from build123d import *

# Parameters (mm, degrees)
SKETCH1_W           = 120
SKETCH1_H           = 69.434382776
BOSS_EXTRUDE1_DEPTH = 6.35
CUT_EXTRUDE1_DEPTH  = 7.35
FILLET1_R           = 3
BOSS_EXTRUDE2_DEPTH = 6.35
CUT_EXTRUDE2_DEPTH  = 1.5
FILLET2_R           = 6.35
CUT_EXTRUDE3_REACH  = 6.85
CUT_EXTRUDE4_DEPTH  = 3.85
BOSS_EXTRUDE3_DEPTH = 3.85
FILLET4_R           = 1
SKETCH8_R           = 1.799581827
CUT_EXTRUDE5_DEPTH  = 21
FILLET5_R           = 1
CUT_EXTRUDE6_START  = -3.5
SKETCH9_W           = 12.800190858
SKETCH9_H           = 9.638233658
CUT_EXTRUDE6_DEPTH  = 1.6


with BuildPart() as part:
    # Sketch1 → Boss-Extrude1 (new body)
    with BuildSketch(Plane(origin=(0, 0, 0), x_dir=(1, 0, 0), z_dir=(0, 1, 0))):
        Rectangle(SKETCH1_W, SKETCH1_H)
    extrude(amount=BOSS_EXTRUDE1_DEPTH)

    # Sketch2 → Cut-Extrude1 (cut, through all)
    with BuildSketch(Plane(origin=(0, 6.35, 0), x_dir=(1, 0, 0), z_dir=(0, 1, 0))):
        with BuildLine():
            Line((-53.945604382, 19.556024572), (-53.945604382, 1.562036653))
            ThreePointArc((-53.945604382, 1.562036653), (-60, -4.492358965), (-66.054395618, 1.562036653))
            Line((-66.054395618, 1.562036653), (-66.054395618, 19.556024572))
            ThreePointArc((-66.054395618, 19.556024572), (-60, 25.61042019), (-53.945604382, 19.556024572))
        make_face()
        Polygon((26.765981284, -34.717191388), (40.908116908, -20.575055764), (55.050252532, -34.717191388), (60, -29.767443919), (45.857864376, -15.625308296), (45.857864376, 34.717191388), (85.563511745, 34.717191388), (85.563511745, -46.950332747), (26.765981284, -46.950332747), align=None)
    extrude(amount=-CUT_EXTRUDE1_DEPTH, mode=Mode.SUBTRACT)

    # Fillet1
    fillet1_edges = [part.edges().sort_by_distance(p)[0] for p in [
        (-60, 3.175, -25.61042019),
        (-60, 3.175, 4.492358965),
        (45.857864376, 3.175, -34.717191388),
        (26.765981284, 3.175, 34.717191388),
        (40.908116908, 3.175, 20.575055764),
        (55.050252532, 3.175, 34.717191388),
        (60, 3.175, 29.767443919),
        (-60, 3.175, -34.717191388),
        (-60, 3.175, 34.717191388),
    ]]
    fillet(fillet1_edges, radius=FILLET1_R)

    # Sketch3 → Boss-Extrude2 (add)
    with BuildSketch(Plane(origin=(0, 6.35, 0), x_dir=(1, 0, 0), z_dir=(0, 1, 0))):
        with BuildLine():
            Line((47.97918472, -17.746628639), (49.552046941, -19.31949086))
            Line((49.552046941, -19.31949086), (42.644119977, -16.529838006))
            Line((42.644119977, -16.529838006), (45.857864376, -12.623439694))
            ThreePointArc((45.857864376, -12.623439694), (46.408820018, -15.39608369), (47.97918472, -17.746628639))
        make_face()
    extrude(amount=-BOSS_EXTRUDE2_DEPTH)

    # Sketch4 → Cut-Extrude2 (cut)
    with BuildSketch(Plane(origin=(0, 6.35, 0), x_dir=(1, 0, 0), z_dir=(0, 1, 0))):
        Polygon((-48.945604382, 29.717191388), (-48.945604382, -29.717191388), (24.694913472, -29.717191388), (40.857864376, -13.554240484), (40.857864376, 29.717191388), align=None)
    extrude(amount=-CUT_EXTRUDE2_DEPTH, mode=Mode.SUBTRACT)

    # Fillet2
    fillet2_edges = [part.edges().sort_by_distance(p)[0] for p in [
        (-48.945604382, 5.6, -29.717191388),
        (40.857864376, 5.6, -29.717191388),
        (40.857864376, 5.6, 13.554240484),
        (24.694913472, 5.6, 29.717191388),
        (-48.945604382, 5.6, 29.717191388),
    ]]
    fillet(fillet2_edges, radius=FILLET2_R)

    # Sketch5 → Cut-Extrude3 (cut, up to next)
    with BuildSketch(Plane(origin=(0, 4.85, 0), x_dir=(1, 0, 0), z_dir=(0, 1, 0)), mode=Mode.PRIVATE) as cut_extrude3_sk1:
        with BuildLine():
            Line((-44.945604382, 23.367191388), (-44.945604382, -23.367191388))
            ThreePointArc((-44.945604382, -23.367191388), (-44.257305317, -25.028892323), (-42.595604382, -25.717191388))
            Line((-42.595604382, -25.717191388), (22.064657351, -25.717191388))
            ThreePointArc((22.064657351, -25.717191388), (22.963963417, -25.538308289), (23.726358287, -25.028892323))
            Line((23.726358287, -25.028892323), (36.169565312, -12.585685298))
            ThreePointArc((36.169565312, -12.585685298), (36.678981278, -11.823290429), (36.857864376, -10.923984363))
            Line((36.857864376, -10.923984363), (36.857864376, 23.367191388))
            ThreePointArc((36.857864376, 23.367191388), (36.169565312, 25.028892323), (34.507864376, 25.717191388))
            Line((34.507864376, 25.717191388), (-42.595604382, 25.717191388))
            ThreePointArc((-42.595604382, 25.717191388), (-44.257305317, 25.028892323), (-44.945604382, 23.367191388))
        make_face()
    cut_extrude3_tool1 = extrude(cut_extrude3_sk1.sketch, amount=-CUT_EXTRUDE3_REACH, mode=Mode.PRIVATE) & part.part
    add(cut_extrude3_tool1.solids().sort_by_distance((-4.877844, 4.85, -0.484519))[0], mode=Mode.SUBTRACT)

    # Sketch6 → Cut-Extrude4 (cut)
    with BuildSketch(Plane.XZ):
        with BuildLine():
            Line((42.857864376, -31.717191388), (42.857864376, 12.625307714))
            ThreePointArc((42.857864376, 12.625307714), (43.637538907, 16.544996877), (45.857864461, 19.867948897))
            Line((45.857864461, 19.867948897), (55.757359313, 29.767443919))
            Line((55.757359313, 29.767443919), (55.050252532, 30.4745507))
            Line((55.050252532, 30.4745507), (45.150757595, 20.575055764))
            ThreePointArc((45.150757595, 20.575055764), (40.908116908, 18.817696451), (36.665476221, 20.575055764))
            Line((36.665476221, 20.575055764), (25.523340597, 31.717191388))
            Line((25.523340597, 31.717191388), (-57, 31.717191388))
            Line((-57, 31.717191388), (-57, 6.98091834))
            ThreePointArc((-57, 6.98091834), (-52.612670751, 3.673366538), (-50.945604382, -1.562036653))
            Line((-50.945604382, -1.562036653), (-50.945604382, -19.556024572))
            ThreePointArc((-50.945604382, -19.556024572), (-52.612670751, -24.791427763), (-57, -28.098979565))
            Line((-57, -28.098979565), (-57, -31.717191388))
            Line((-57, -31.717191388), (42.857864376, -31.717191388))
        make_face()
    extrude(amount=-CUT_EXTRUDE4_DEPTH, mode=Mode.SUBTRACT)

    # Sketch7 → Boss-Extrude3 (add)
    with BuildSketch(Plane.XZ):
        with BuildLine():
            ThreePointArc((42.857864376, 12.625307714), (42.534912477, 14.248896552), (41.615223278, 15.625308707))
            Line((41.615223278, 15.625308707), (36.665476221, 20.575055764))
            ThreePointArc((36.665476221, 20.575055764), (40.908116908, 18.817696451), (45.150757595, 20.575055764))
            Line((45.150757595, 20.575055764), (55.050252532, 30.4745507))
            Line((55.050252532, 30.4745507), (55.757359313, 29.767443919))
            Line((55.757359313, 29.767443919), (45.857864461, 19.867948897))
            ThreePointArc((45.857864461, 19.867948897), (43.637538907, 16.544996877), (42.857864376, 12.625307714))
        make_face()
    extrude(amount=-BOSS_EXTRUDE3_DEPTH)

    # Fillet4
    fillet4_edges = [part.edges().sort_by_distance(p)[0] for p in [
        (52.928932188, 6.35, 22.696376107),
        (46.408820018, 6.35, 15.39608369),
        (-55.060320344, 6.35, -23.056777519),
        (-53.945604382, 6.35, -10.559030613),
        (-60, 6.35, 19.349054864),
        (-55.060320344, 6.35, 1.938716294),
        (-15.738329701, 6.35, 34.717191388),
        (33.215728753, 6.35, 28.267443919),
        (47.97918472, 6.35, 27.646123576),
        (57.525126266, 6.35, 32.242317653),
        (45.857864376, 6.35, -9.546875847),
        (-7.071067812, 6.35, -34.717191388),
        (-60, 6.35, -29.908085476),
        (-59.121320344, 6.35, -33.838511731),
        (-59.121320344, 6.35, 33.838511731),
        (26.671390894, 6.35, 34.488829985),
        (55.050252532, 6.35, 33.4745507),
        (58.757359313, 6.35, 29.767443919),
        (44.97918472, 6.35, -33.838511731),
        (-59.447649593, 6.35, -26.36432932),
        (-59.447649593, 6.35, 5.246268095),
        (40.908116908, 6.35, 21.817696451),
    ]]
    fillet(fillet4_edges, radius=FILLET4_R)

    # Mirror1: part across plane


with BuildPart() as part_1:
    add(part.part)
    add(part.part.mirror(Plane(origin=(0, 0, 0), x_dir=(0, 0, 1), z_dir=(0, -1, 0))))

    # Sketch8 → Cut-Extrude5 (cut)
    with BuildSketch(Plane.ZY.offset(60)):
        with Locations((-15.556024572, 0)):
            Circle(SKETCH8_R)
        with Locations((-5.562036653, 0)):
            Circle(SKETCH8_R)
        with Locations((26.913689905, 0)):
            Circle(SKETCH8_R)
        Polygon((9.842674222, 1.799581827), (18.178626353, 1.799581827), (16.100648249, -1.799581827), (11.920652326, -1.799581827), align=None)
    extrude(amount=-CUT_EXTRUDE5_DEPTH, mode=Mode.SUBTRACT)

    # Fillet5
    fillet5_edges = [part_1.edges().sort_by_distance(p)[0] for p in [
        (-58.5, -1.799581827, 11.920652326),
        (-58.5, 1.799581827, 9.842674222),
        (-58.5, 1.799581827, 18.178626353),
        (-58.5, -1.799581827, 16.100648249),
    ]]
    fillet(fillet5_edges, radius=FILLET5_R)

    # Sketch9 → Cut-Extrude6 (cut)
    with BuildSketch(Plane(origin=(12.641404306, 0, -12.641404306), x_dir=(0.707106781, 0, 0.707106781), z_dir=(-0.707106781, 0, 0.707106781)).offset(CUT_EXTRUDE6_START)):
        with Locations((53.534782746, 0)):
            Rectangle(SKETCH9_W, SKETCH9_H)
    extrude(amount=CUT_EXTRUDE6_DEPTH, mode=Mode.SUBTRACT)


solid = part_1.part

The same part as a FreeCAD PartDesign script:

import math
import FreeCAD as App
import Part
import Sketcher

V = App.Vector
Q = App.Units.Quantity


def edges_at(feature, points):
    """Names of the edges that pass closest to the given points."""
    edges = feature.Shape.Edges
    near = lambda p: min(range(len(edges)), key=lambda i: edges[i].distToShape(Part.Vertex(*p))[0])
    return sorted({f"Edge{near(p) + 1}" for p in points})


def add_polygon(sketch, points):
    """Adds a closed chain of lines whose ends are joined by coincident constraints."""
    first, n = sketch.GeometryCount, len(points)
    for a, b in zip(points, points[1:] + points[:1]):
        sketch.addGeometry(Part.LineSegment(App.Vector(*a, 0), App.Vector(*b, 0)), False)
    for i in range(n):
        sketch.addConstraint(Sketcher.Constraint("Coincident", first + i, 2, first + (i + 1) % n, 1))

doc = App.newDocument("Part")
params = doc.addObject("Spreadsheet::Sheet", "Params")
for row, (alias, value) in enumerate([
    ("sketch1_width", "120 mm"),
    ("pad1_length", "6.35 mm"),
    ("sketch2_length", "20 mm"),
    ("sketch2_length2", "7 mm"),
    ("fillet_radius", "3 mm"),
    ("pad2_length", "6.35 mm"),
    ("pocket2_length", "1.5 mm"),
    ("fillet2_radius", "6.35 mm"),
    ("sketch5_radius", "2.35 mm"),
    ("sketch6_radius", "6 mm"),
    ("sketch6_length", "14 mm"),
    ("sketch6_length2", "1 mm"),
    ("pocket4_length", "3.85 mm"),
    ("sketch7_radius", "6 mm"),
    ("sketch7_length", "14 mm"),
    ("sketch7_length2", "1 mm"),
    ("sketch7_length3", "6.999999 mm"),
    ("pad3_length", "3.85 mm"),
    ("fillet3_radius", "1 mm"),
    ("pocket5_length", "21 mm"),
    ("fillet4_radius", "1 mm"),
    ("pocket6_length", "1.6 mm"),
], start=1):
    params.set(f"A{row}", alias)
    params.set(f"B{row}", "=" + value)
    params.setAlias(f"B{row}", alias)

body = doc.addObject("PartDesign::Body", "Body")

sketch1 = body.newObject("Sketcher::SketchObject", "Sketch")
sketch1.AttachmentSupport = (doc.getObject("XZ_Plane"), [""])
sketch1.MapMode = "FlatFace"
add_polygon(sketch1, [(-60, -35), (-60, 35), (60, 35), (60, -35)])
sketch1.addConstraint(Sketcher.Constraint("Vertical", 0))
sketch1.addConstraint(Sketcher.Constraint("Horizontal", 1))
sketch1.addConstraint(Sketcher.Constraint("Vertical", 2))
sketch1.addConstraint(Sketcher.Constraint("Horizontal", 3))
sketch1.addConstraint(Sketcher.Constraint("Symmetric", 0, 2, 2, 2, -1, 1))
sketch1.addConstraint(Sketcher.Constraint("DistanceX", 1, 1, 1, 2, 120.0))
sketch1.addConstraint(Sketcher.Constraint("DistanceY", 0, 1, 0, 2, 69.434383))
sketch1.setExpression("Constraints[9]", "Params.sketch1_width")
pad1 = body.newObject("PartDesign::Pad", "Pad")
pad1.Profile = sketch1
pad1.setExpression("Length", "Params.pad1_length")
pad1.Reversed = True

sketch2 = body.newObject("Sketcher::SketchObject", "Sketch001")
sketch2.AttachmentSupport = (doc.getObject("XZ_Plane"), [""])
sketch2.MapMode = "FlatFace"
sketch2.AttachmentOffset = App.Placement(V(0, 0, -6.35), App.Rotation())
sketch2.addGeometry(Part.LineSegment(V(-54, -2, 0), V(-54, -20, 0)), False)
sketch2.addGeometry(Part.ArcOfCircle(Part.Circle(V(-60, -20, 0), V(0, 0, 1), 6), math.radians(180), math.radians(360)), False)
sketch2.addGeometry(Part.LineSegment(V(-66, -20, 0), V(-66, -2, 0)), False)
sketch2.addGeometry(Part.ArcOfCircle(Part.Circle(V(-60, -2, 0), V(0, 0, 1), 6), math.radians(0), math.radians(180)), False)
add_polygon(sketch2, [(41, 21), (27, 35), (27, 47), (86, 47), (86, -35), (46, -35), (46, 16), (60, 30), (55, 35)])
sketch2.addConstraint(Sketcher.Constraint("Tangent", 0, 2, 1, 2))
sketch2.addConstraint(Sketcher.Constraint("Tangent", 1, 1, 2, 1))
sketch2.addConstraint(Sketcher.Constraint("Tangent", 2, 2, 3, 2))
sketch2.addConstraint(Sketcher.Constraint("Tangent", 3, 1, 0, 1))
sketch2.addConstraint(Sketcher.Constraint("Vertical", 0))
sketch2.addConstraint(Sketcher.Constraint("Vertical", 2))
sketch2.addConstraint(Sketcher.Constraint("Vertical", 5))
sketch2.addConstraint(Sketcher.Constraint("Horizontal", 6))
sketch2.addConstraint(Sketcher.Constraint("Vertical", 7))
sketch2.addConstraint(Sketcher.Constraint("Horizontal", 8))
sketch2.addConstraint(Sketcher.Constraint("Vertical", 9))
sketch2.addConstraint(Sketcher.Constraint("Perpendicular", 4, 10))
sketch2.addConstraint(Sketcher.Constraint("Perpendicular", 10, 11))
sketch2.addConstraint(Sketcher.Constraint("Perpendicular", 11, 12))
sketch2.addConstraint(Sketcher.Constraint("Horizontal", 4, 2, 11, 2))
sketch2.addConstraint(Sketcher.Constraint("Equal", 4, 10))
sketch2.addConstraint(Sketcher.Constraint("Equal", 10, 12))
sketch2.addConstraint(Sketcher.Constraint("Distance", 4, 20.0))
sketch2.addConstraint(Sketcher.Constraint("Distance", 11, 7.0))
sketch2.addConstraint(Sketcher.Constraint("DistanceX", 1, 3, -1, 1, 60.0))
sketch2.addConstraint(Sketcher.Constraint("DistanceX", -1, 1, 10, 2, 60.0))
sketch2.addConstraint(Sketcher.Constraint("DistanceY", 9, 1, 9, 2, 50.3425))
sketch2.addConstraint(Sketcher.Constraint("Radius", 1, 6.054396))
sketch2.addConstraint(Sketcher.Constraint("DistanceX", 6, 1, 6, 2, 58.79753))
sketch2.addConstraint(Sketcher.Constraint("DistanceY", 5, 1, 5, 2, 12.233141))
sketch2.addConstraint(Sketcher.Constraint("DistanceY", 0, 2, 0, 1, 17.993988))
sketch2.addConstraint(Sketcher.Constraint("DistanceY", -1, 1, 4, 2, 34.717191))
sketch2.addConstraint(Sketcher.Constraint("DistanceY", 3, 1, 4, 2, 36.279228))
sketch2.setExpression("Constraints[26]", "Params.sketch2_length")
sketch2.setExpression("Constraints[27]", "Params.sketch2_length2")
pocket1 = body.newObject("PartDesign::Pocket", "Pocket")
pocket1.Profile = sketch2
pocket1.Type = "ThroughAll"
pocket1.Reversed = True
doc.recompute()

fillet = body.newObject("PartDesign::Fillet", "Fillet")
fillet.Base = (pocket1, edges_at(pocket1, [
    (-60, 3.175, -25.61),
    (-60, 3.175, 4.492),
    (45.858, 3.175, -34.717),
    (26.766, 3.175, 34.717),
    (40.908, 3.175, 20.575),
    (55.05, 3.175, 34.717),
    (60, 3.175, 29.767),
    (-60, 3.175, -34.717),
    (-60, 3.175, 34.717),
]))
fillet.setExpression("Radius", "Params.fillet_radius")

sketch3 = body.newObject("Sketcher::SketchObject", "Sketch002")
sketch3.AttachmentSupport = (doc.getObject("XZ_Plane"), [""])
sketch3.MapMode = "FlatFace"
sketch3.AttachmentOffset = App.Placement(V(0, 0, -6.35), App.Rotation())
sketch3.addGeometry(Part.LineSegment(V(49.6, 19.3, 0), V(48, 17.7, 0)), False)
sketch3.addGeometry(Part.ArcOfCircle(Part.Circle(V(53.1, 12.6, 0), V(0, 0, 1), 7.2), math.radians(135), math.radians(180)), False)
sketch3.addGeometry(Part.LineSegment(V(45.9, 12.6, 0), V(42.6, 16.5, 0)), False)
sketch3.addGeometry(Part.LineSegment(V(42.6, 16.5, 0), V(49.6, 19.3, 0)), False)
sketch3.addConstraint(Sketcher.Constraint("Tangent", 0, 2, 1, 1))
sketch3.addConstraint(Sketcher.Constraint("Coincident", 1, 2, 2, 1))
sketch3.addConstraint(Sketcher.Constraint("Coincident", 2, 2, 3, 1))
sketch3.addConstraint(Sketcher.Constraint("Coincident", 3, 2, 0, 1))
sketch3.addConstraint(Sketcher.Constraint("Angle", 0, Q("-135 deg")))
sketch3.addConstraint(Sketcher.Constraint("Radius", 1, 7.242642))
sketch3.addConstraint(Sketcher.Constraint("DistanceY", 1, 2, 2, 2, 3.906398))
sketch3.addConstraint(Sketcher.Constraint("Distance", 2, 5.058468))
sketch3.addConstraint(Sketcher.Constraint("Distance", 3, 7.449941))
sketch3.addConstraint(Sketcher.Constraint("DistanceY", -1, 1, 0, 2, 17.746629))
sketch3.addConstraint(Sketcher.Constraint("DistanceY", -1, 1, 1, 2, 12.62344))
sketch3.addConstraint(Sketcher.Constraint("DistanceX", -1, 1, 2, 2, 42.64412))
pad2 = body.newObject("PartDesign::Pad", "Pad001")
pad2.Profile = sketch3
pad2.setExpression("Length", "Params.pad2_length")

sketch4 = body.newObject("Sketcher::SketchObject", "Sketch003")
sketch4.AttachmentSupport = (doc.getObject("XZ_Plane"), [""])
sketch4.MapMode = "FlatFace"
sketch4.AttachmentOffset = App.Placement(V(0, 0, -6.35), App.Rotation())
add_polygon(sketch4, [(-49, -30), (-49, 30), (25, 30), (41, 14), (41, -30)])
sketch4.addConstraint(Sketcher.Constraint("Vertical", 0))
sketch4.addConstraint(Sketcher.Constraint("Horizontal", 1))
sketch4.addConstraint(Sketcher.Constraint("Vertical", 3))
sketch4.addConstraint(Sketcher.Constraint("Horizontal", 4))
sketch4.addConstraint(Sketcher.Constraint("Angle", 2, Q("-45 deg")))
sketch4.addConstraint(Sketcher.Constraint("DistanceX", 4, 2, 4, 1, 89.803469))
sketch4.addConstraint(Sketcher.Constraint("DistanceY", 3, 2, 3, 1, 43.271432))
sketch4.addConstraint(Sketcher.Constraint("DistanceX", 1, 1, 1, 2, 73.640518))
sketch4.addConstraint(Sketcher.Constraint("DistanceY", -1, 1, 0, 2, 29.717191))
sketch4.addConstraint(Sketcher.Constraint("DistanceX", 0, 2, -1, 1, 48.945604))
pocket2 = body.newObject("PartDesign::Pocket", "Pocket001")
pocket2.Profile = sketch4
pocket2.setExpression("Length", "Params.pocket2_length")
pocket2.Reversed = True
doc.recompute()

fillet2 = body.newObject("PartDesign::Fillet", "Fillet001")
fillet2.Base = (pocket2, edges_at(pocket2, [
    (-48.946, 5.6, -29.717),
    (40.858, 5.6, -29.717),
    (40.858, 5.6, 13.554),
    (24.695, 5.6, 29.717),
    (-48.946, 5.6, 29.717),
]))
fillet2.setExpression("Radius", "Params.fillet2_radius")

sketch5 = body.newObject("Sketcher::SketchObject", "Sketch004")
sketch5.AttachmentSupport = (doc.getObject("XZ_Plane"), [""])
sketch5.MapMode = "FlatFace"
sketch5.AttachmentOffset = App.Placement(V(0, 0, -4.85), App.Rotation())
sketch5.addGeometry(Part.LineSegment(V(-44.9, -23.4, 0), V(-44.9, 23.4, 0)), False)
sketch5.addGeometry(Part.ArcOfCircle(Part.Circle(V(-42.6, 23.4, 0), V(0, 0, 1), 2.4), math.radians(90), math.radians(180)), False)
sketch5.addGeometry(Part.LineSegment(V(-42.6, 25.7, 0), V(22.1, 25.7, 0)), False)
sketch5.addGeometry(Part.ArcOfCircle(Part.Circle(V(22.1, 23.4, 0), V(0, 0, 1), 2.4), math.radians(45), math.radians(90)), False)
sketch5.addGeometry(Part.LineSegment(V(23.7, 25, 0), V(36.2, 12.6, 0)), False)
sketch5.addGeometry(Part.ArcOfCircle(Part.Circle(V(34.5, 10.9, 0), V(0, 0, 1), 2.3), math.radians(0), math.radians(45)), False)
sketch5.addGeometry(Part.LineSegment(V(36.9, 10.9, 0), V(36.9, -23.4, 0)), False)
sketch5.addGeometry(Part.ArcOfCircle(Part.Circle(V(34.5, -23.4, 0), V(0, 0, 1), 2.4), math.radians(-90), math.radians(0)), False)
sketch5.addGeometry(Part.LineSegment(V(34.5, -25.7, 0), V(-42.6, -25.7, 0)), False)
sketch5.addGeometry(Part.ArcOfCircle(Part.Circle(V(-42.6, -23.4, 0), V(0, 0, 1), 2.4), math.radians(-180), math.radians(-90)), False)
sketch5.addConstraint(Sketcher.Constraint("Tangent", 0, 2, 1, 2))
sketch5.addConstraint(Sketcher.Constraint("Tangent", 1, 1, 2, 1))
sketch5.addConstraint(Sketcher.Constraint("Tangent", 2, 2, 3, 2))
sketch5.addConstraint(Sketcher.Constraint("Tangent", 3, 1, 4, 1))
sketch5.addConstraint(Sketcher.Constraint("Tangent", 4, 2, 5, 2))
sketch5.addConstraint(Sketcher.Constraint("Tangent", 5, 1, 6, 1))
sketch5.addConstraint(Sketcher.Constraint("Tangent", 6, 2, 7, 2))
sketch5.addConstraint(Sketcher.Constraint("Tangent", 7, 1, 8, 1))
sketch5.addConstraint(Sketcher.Constraint("Tangent", 8, 2, 9, 2))
sketch5.addConstraint(Sketcher.Constraint("Tangent", 9, 1, 0, 1))
sketch5.addConstraint(Sketcher.Constraint("Vertical", 0))
sketch5.addConstraint(Sketcher.Constraint("Horizontal", 2))
sketch5.addConstraint(Sketcher.Constraint("Vertical", 6))
sketch5.addConstraint(Sketcher.Constraint("Horizontal", 8))
sketch5.addConstraint(Sketcher.Constraint("Equal", 1, 3))
sketch5.addConstraint(Sketcher.Constraint("Equal", 3, 5))
sketch5.addConstraint(Sketcher.Constraint("Equal", 5, 7))
sketch5.addConstraint(Sketcher.Constraint("Equal", 7, 9))
sketch5.addConstraint(Sketcher.Constraint("Angle", 4, Q("-45 deg")))
sketch5.addConstraint(Sketcher.Constraint("Radius", 1, 2.35))
sketch5.addConstraint(Sketcher.Constraint("DistanceX", 2, 1, 2, 2, 64.660262))
sketch5.addConstraint(Sketcher.Constraint("DistanceX", 8, 2, 8, 1, 77.103469))
sketch5.addConstraint(Sketcher.Constraint("DistanceY", 0, 1, 0, 2, 46.734383))
sketch5.addConstraint(Sketcher.Constraint("DistanceY", -1, 1, 1, 3, 23.367191))
sketch5.addConstraint(Sketcher.Constraint("DistanceX", -1, 1, 3, 1, 23.726358))
sketch5.setExpression("Constraints[19]", "Params.sketch5_radius")
pocket3 = body.newObject("PartDesign::Pocket", "Pocket002")
pocket3.Profile = sketch5
pocket3.Type = "UpToFirst"
pocket3.Reversed = True

sketch6 = body.newObject("Sketcher::SketchObject", "Sketch005")
sketch6.AttachmentSupport = (doc.getObject("XZ_Plane"), [""])
sketch6.MapMode = "FlatFace"
sketch6.addGeometry(Part.LineSegment(V(42.9, -31.7, 0), V(42.9, 12.6, 0)), False)
sketch6.addGeometry(Part.ArcOfCircle(Part.Circle(V(53.1, 12.6, 0), V(0, 0, 1), 10.2), math.radians(135), math.radians(180)), False)
sketch6.addGeometry(Part.LineSegment(V(45.9, 19.9, 0), V(55.8, 29.8, 0)), False)
sketch6.addGeometry(Part.LineSegment(V(55.8, 29.8, 0), V(55.1, 30.5, 0)), False)
sketch6.addGeometry(Part.LineSegment(V(55.1, 30.5, 0), V(45.2, 20.6, 0)), False)
sketch6.addGeometry(Part.ArcOfCircle(Part.Circle(V(40.9, 24.8, 0), V(0, 0, 1), 6), math.radians(-135), math.radians(-45)), False)
sketch6.addGeometry(Part.LineSegment(V(36.7, 20.6, 0), V(25.5, 31.7, 0)), False)
sketch6.addGeometry(Part.LineSegment(V(25.5, 31.7, 0), V(-57, 31.7, 0)), False)
sketch6.addGeometry(Part.LineSegment(V(-57, 31.7, 0), V(-57, 7, 0)), False)
sketch6.addGeometry(Part.ArcOfCircle(Part.Circle(V(-60, -1.6, 0), V(0, 0, 1), 9.1), math.radians(0), math.radians(71)), False)
sketch6.addGeometry(Part.LineSegment(V(-50.9, -1.6, 0), V(-50.9, -19.6, 0)), False)
sketch6.addGeometry(Part.ArcOfCircle(Part.Circle(V(-60, -19.6, 0), V(0, 0, 1), 9.1), math.radians(-71), math.radians(0)), False)
sketch6.addGeometry(Part.LineSegment(V(-57, -28.1, 0), V(-57, -31.7, 0)), False)
sketch6.addGeometry(Part.LineSegment(V(-57, -31.7, 0), V(42.9, -31.7, 0)), False)
sketch6.addConstraint(Sketcher.Constraint("Tangent", 0, 2, 1, 2))
sketch6.addConstraint(Sketcher.Constraint("Tangent", 1, 1, 2, 1))
sketch6.addConstraint(Sketcher.Constraint("Coincident", 2, 2, 3, 1))
sketch6.addConstraint(Sketcher.Constraint("Coincident", 3, 2, 4, 1))
sketch6.addConstraint(Sketcher.Constraint("Tangent", 4, 2, 5, 2))
sketch6.addConstraint(Sketcher.Constraint("Tangent", 5, 1, 6, 1))
sketch6.addConstraint(Sketcher.Constraint("Coincident", 6, 2, 7, 1))
sketch6.addConstraint(Sketcher.Constraint("Coincident", 7, 2, 8, 1))
sketch6.addConstraint(Sketcher.Constraint("Coincident", 8, 2, 9, 2))
sketch6.addConstraint(Sketcher.Constraint("Tangent", 9, 1, 10, 1))
sketch6.addConstraint(Sketcher.Constraint("Tangent", 10, 2, 11, 2))
sketch6.addConstraint(Sketcher.Constraint("Coincident", 11, 1, 12, 1))
sketch6.addConstraint(Sketcher.Constraint("Coincident", 12, 2, 13, 1))
sketch6.addConstraint(Sketcher.Constraint("Coincident", 13, 2, 0, 1))
sketch6.addConstraint(Sketcher.Constraint("Vertical", 0))
sketch6.addConstraint(Sketcher.Constraint("Horizontal", 7))
sketch6.addConstraint(Sketcher.Constraint("Vertical", 8))
sketch6.addConstraint(Sketcher.Constraint("Vertical", 10))
sketch6.addConstraint(Sketcher.Constraint("Vertical", 12))
sketch6.addConstraint(Sketcher.Constraint("Horizontal", 13))
sketch6.addConstraint(Sketcher.Constraint("Equal", 9, 11))
sketch6.addConstraint(Sketcher.Constraint("Symmetric", 7, 2, 12, 2, -1))
sketch6.addConstraint(Sketcher.Constraint("Perpendicular", 2, 3))
sketch6.addConstraint(Sketcher.Constraint("Perpendicular", 3, 4))
sketch6.addConstraint(Sketcher.Constraint("Perpendicular", 4, 6))
sketch6.addConstraint(Sketcher.Constraint("Horizontal", 4, 2, 5, 1))
sketch6.addConstraint(Sketcher.Constraint("Equal", 2, 4))
sketch6.addConstraint(Sketcher.Constraint("Radius", 5, 6.0))
sketch6.addConstraint(Sketcher.Constraint("Distance", 2, 14.0))
sketch6.addConstraint(Sketcher.Constraint("Distance", 3, 1.0))
sketch6.addConstraint(Sketcher.Constraint("DistanceX", 9, 3, -1, 1, 60.0))
sketch6.addConstraint(Sketcher.Constraint("DistanceX", 7, 2, -1, 1, 57.0))
sketch6.addConstraint(Sketcher.Constraint("DistanceX", 0, 2, 1, 1, 3.0))
sketch6.addConstraint(Sketcher.Constraint("DistanceY", 0, 1, 0, 2, 44.342499))
sketch6.addConstraint(Sketcher.Constraint("Radius", 9, 9.054396))
sketch6.addConstraint(Sketcher.Constraint("DistanceX", 7, 2, 7, 1, 82.523341))
sketch6.addConstraint(Sketcher.Constraint("DistanceY", 12, 2, 12, 1, 3.618212))
sketch6.addConstraint(Sketcher.Constraint("Distance", 6, 15.757359))
sketch6.addConstraint(Sketcher.Constraint("DistanceY", 8, 2, 8, 1, 24.736273))
sketch6.setExpression("Constraints[27]", "Params.sketch6_radius")
sketch6.setExpression("Constraints[28]", "Params.sketch6_length")
sketch6.setExpression("Constraints[29]", "Params.sketch6_length2")
pocket4 = body.newObject("PartDesign::Pocket", "Pocket003")
pocket4.Profile = sketch6
pocket4.setExpression("Length", "Params.pocket4_length")

sketch7 = body.newObject("Sketcher::SketchObject", "Sketch006")
sketch7.AttachmentSupport = (doc.getObject("XZ_Plane"), [""])
sketch7.MapMode = "FlatFace"
sketch7.addGeometry(Part.ArcOfCircle(Part.Circle(V(38.6, 12.6, 0), V(0, 0, 1), 4.2), math.radians(0), math.radians(45)), False)
sketch7.addGeometry(Part.ArcOfCircle(Part.Circle(V(53.1, 12.6, 0), V(0, 0, 1), 10.2), math.radians(135), math.radians(180)), False)
sketch7.addGeometry(Part.LineSegment(V(45.9, 19.9, 0), V(55.8, 29.8, 0)), False)
sketch7.addGeometry(Part.LineSegment(V(55.8, 29.8, 0), V(55.1, 30.5, 0)), False)
sketch7.addGeometry(Part.LineSegment(V(55.1, 30.5, 0), V(45.2, 20.6, 0)), False)
sketch7.addGeometry(Part.ArcOfCircle(Part.Circle(V(40.9, 24.8, 0), V(0, 0, 1), 6), math.radians(-135), math.radians(-45)), False)
sketch7.addGeometry(Part.LineSegment(V(36.7, 20.6, 0), V(41.6, 15.6, 0)), False)
sketch7.addConstraint(Sketcher.Constraint("Tangent", 0, 1, 1, 2))
sketch7.addConstraint(Sketcher.Constraint("Tangent", 1, 1, 2, 1))
sketch7.addConstraint(Sketcher.Constraint("Coincident", 2, 2, 3, 1))
sketch7.addConstraint(Sketcher.Constraint("Coincident", 3, 2, 4, 1))
sketch7.addConstraint(Sketcher.Constraint("Tangent", 4, 2, 5, 2))
sketch7.addConstraint(Sketcher.Constraint("Tangent", 5, 1, 6, 1))
sketch7.addConstraint(Sketcher.Constraint("Tangent", 6, 2, 0, 2))
sketch7.addConstraint(Sketcher.Constraint("Perpendicular", 2, 3))
sketch7.addConstraint(Sketcher.Constraint("Perpendicular", 3, 4))
sketch7.addConstraint(Sketcher.Constraint("Perpendicular", 4, 6))
sketch7.addConstraint(Sketcher.Constraint("Horizontal", 0, 3, 1, 3))
sketch7.addConstraint(Sketcher.Constraint("Horizontal", 4, 2, 5, 1))
sketch7.addConstraint(Sketcher.Constraint("Equal", 2, 4))
sketch7.addConstraint(Sketcher.Constraint("Radius", 5, 6.0))
sketch7.addConstraint(Sketcher.Constraint("Distance", 2, 14.0))
sketch7.addConstraint(Sketcher.Constraint("Distance", 3, 1.0))
sketch7.addConstraint(Sketcher.Constraint("Distance", 6, 6.999999))
sketch7.addConstraint(Sketcher.Constraint("DistanceY", -1, 1, 1, 3, 12.625308))
sketch7.addConstraint(Sketcher.Constraint("DistanceX", -1, 1, 2, 2, 55.757359))
sketch7.setExpression("Constraints[13]", "Params.sketch7_radius")
sketch7.setExpression("Constraints[14]", "Params.sketch7_length")
sketch7.setExpression("Constraints[15]", "Params.sketch7_length2")
sketch7.setExpression("Constraints[16]", "Params.sketch7_length3")
pad3 = body.newObject("PartDesign::Pad", "Pad002")
pad3.Profile = sketch7
pad3.setExpression("Length", "Params.pad3_length")
pad3.Reversed = True
doc.recompute()

fillet3 = body.newObject("PartDesign::Fillet", "Fillet002")
fillet3.Base = (pad3, edges_at(pad3, [
    (53.715, 6.35, 23.483),
    (46.409, 6.35, 15.396),
    (-55.06, 6.35, -23.057),
    (-53.946, 6.35, -10.559),
    (-60, 6.35, 19.349),
    (-55.06, 6.35, 1.939),
    (-15.738, 6.35, 34.717),
    (33.216, 6.35, 28.267),
    (47.979, 6.35, 27.646),
    (57.525, 6.35, 32.242),
    (45.858, 6.35, -9.547),
    (-7.071, 6.35, -34.717),
    (-60, 6.35, -29.908),
    (-59.121, 6.35, -33.839),
    (-59.121, 6.35, 33.839),
    (26.671, 6.35, 34.489),
    (55.05, 6.35, 33.475),
    (58.757, 6.35, 29.767),
    (44.979, 6.35, -33.839),
    (-59.448, 6.35, -26.364),
    (-59.448, 6.35, 5.246),
    (40.908, 6.35, 21.818),
]))
fillet3.setExpression("Radius", "Params.fillet3_radius")
body2 = doc.addObject("PartDesign::Body", "Body001")
doc.recompute()

body2.BaseFeature = body
doc.recompute()

mirroring = doc.addObject("Part::Mirroring", "Mirroring")
mirroring.Source = body
mirroring.Base = V(0, 0, 0)
mirroring.Normal = V(0, -1, 0)
body3 = doc.addObject("PartDesign::Body", "Body002")
body3.BaseFeature = mirroring
boolean = body2.newObject("PartDesign::Boolean", "Boolean")
boolean.Type = "Fuse"
boolean.addObjects([body3])
doc.recompute()

sketch8 = body2.newObject("Sketcher::SketchObject", "Sketch007")
sketch8.AttachmentSupport = (doc.getObject("YZ_Plane001"), [""])
sketch8.MapMode = "FlatFace"
sketch8.AttachmentOffset = App.Placement(V(0, 0, -60), App.Rotation())
sketch8.addGeometry(Part.Circle(V(0, -15.6, 0), V(0, 0, 1), 1.8), False)
sketch8.addGeometry(Part.Circle(V(0, -5.6, 0), V(0, 0, 1), 1.8), False)
sketch8.addGeometry(Part.Circle(V(0, 26.9, 0), V(0, 0, 1), 1.8), False)
add_polygon(sketch8, [(1.8, 18.2), (1.8, 9.8), (-1.8, 11.9), (-1.8, 16.1)])
sketch8.addConstraint(Sketcher.Constraint("Vertical", 3))
sketch8.addConstraint(Sketcher.Constraint("Vertical", 5))
sketch8.addConstraint(Sketcher.Constraint("Equal", 0, 1))
sketch8.addConstraint(Sketcher.Constraint("Equal", 1, 2))
sketch8.addConstraint(Sketcher.Constraint("PointOnObject", 0, 3, -2))
sketch8.addConstraint(Sketcher.Constraint("PointOnObject", 1, 3, -2))
sketch8.addConstraint(Sketcher.Constraint("PointOnObject", 2, 3, -2))
sketch8.addConstraint(Sketcher.Constraint("Equal", 4, 6))
sketch8.addConstraint(Sketcher.Constraint("Angle", 4, Q("150 deg")))
sketch8.addConstraint(Sketcher.Constraint("Diameter", 0, 3.599164))
sketch8.addConstraint(Sketcher.Constraint("DistanceY", 0, 3, 3, 2, 25.398699))
sketch8.addConstraint(Sketcher.Constraint("DistanceY", 3, 2, 3, 1, 8.335952))
sketch8.addConstraint(Sketcher.Constraint("DistanceY", 5, 1, 5, 2, 4.179996))
sketch8.addConstraint(Sketcher.Constraint("DistanceY", -1, 1, 2, 3, 26.91369))
sketch8.addConstraint(Sketcher.Constraint("DistanceX", -1, 1, 3, 2, 1.799582))
sketch8.addConstraint(Sketcher.Constraint("DistanceY", -1, 1, 5, 2, 16.100648))
sketch8.addConstraint(Sketcher.Constraint("DistanceY", 1, 3, 3, 2, 15.404711))
pocket5 = body2.newObject("PartDesign::Pocket", "Pocket004")
pocket5.Profile = sketch8
pocket5.setExpression("Length", "Params.pocket5_length")
pocket5.Reversed = True
doc.recompute()

fillet4 = body2.newObject("PartDesign::Fillet", "Fillet003")
fillet4.Base = (pocket5, edges_at(pocket5, [
    (-58.5, -1.8, 11.921),
    (-58.5, 1.8, 9.843),
    (-58.5, 1.8, 18.179),
    (-58.5, -1.8, 16.101),
]))
fillet4.setExpression("Radius", "Params.fillet4_radius")

sketch9 = body2.newObject("Sketcher::SketchObject", "Sketch008")
sketch9.Placement = App.Placement(V(15.116278, 0, -15.116278), App.Rotation(V(0.707106781, 0, 0.707106781), V(0, 0.999999999, 0), V(-0.707106781, 0, 0.707106781), "ZXY"))
add_polygon(sketch9, [(47, 5), (47, -5), (60, -5), (60, 5)])
sketch9.addConstraint(Sketcher.Constraint("Vertical", 0))
sketch9.addConstraint(Sketcher.Constraint("Horizontal", 1))
sketch9.addConstraint(Sketcher.Constraint("Vertical", 2))
sketch9.addConstraint(Sketcher.Constraint("Horizontal", 3))
sketch9.addConstraint(Sketcher.Constraint("DistanceX", 1, 1, 1, 2, 12.800191))
sketch9.addConstraint(Sketcher.Constraint("DistanceY", 0, 2, 0, 1, 9.638234))
sketch9.addConstraint(Sketcher.Constraint("DistanceX", -1, 1, 1, 2, 59.934878))
sketch9.addConstraint(Sketcher.Constraint("DistanceY", 0, 2, -1, 1, 4.819117))
pocket6 = body2.newObject("PartDesign::Pocket", "Pocket005")
pocket6.Profile = sketch9
pocket6.setExpression("Length", "Params.pocket6_length")
pocket6.Reversed = True
mirroring.Visibility = False

doc.recompute()
